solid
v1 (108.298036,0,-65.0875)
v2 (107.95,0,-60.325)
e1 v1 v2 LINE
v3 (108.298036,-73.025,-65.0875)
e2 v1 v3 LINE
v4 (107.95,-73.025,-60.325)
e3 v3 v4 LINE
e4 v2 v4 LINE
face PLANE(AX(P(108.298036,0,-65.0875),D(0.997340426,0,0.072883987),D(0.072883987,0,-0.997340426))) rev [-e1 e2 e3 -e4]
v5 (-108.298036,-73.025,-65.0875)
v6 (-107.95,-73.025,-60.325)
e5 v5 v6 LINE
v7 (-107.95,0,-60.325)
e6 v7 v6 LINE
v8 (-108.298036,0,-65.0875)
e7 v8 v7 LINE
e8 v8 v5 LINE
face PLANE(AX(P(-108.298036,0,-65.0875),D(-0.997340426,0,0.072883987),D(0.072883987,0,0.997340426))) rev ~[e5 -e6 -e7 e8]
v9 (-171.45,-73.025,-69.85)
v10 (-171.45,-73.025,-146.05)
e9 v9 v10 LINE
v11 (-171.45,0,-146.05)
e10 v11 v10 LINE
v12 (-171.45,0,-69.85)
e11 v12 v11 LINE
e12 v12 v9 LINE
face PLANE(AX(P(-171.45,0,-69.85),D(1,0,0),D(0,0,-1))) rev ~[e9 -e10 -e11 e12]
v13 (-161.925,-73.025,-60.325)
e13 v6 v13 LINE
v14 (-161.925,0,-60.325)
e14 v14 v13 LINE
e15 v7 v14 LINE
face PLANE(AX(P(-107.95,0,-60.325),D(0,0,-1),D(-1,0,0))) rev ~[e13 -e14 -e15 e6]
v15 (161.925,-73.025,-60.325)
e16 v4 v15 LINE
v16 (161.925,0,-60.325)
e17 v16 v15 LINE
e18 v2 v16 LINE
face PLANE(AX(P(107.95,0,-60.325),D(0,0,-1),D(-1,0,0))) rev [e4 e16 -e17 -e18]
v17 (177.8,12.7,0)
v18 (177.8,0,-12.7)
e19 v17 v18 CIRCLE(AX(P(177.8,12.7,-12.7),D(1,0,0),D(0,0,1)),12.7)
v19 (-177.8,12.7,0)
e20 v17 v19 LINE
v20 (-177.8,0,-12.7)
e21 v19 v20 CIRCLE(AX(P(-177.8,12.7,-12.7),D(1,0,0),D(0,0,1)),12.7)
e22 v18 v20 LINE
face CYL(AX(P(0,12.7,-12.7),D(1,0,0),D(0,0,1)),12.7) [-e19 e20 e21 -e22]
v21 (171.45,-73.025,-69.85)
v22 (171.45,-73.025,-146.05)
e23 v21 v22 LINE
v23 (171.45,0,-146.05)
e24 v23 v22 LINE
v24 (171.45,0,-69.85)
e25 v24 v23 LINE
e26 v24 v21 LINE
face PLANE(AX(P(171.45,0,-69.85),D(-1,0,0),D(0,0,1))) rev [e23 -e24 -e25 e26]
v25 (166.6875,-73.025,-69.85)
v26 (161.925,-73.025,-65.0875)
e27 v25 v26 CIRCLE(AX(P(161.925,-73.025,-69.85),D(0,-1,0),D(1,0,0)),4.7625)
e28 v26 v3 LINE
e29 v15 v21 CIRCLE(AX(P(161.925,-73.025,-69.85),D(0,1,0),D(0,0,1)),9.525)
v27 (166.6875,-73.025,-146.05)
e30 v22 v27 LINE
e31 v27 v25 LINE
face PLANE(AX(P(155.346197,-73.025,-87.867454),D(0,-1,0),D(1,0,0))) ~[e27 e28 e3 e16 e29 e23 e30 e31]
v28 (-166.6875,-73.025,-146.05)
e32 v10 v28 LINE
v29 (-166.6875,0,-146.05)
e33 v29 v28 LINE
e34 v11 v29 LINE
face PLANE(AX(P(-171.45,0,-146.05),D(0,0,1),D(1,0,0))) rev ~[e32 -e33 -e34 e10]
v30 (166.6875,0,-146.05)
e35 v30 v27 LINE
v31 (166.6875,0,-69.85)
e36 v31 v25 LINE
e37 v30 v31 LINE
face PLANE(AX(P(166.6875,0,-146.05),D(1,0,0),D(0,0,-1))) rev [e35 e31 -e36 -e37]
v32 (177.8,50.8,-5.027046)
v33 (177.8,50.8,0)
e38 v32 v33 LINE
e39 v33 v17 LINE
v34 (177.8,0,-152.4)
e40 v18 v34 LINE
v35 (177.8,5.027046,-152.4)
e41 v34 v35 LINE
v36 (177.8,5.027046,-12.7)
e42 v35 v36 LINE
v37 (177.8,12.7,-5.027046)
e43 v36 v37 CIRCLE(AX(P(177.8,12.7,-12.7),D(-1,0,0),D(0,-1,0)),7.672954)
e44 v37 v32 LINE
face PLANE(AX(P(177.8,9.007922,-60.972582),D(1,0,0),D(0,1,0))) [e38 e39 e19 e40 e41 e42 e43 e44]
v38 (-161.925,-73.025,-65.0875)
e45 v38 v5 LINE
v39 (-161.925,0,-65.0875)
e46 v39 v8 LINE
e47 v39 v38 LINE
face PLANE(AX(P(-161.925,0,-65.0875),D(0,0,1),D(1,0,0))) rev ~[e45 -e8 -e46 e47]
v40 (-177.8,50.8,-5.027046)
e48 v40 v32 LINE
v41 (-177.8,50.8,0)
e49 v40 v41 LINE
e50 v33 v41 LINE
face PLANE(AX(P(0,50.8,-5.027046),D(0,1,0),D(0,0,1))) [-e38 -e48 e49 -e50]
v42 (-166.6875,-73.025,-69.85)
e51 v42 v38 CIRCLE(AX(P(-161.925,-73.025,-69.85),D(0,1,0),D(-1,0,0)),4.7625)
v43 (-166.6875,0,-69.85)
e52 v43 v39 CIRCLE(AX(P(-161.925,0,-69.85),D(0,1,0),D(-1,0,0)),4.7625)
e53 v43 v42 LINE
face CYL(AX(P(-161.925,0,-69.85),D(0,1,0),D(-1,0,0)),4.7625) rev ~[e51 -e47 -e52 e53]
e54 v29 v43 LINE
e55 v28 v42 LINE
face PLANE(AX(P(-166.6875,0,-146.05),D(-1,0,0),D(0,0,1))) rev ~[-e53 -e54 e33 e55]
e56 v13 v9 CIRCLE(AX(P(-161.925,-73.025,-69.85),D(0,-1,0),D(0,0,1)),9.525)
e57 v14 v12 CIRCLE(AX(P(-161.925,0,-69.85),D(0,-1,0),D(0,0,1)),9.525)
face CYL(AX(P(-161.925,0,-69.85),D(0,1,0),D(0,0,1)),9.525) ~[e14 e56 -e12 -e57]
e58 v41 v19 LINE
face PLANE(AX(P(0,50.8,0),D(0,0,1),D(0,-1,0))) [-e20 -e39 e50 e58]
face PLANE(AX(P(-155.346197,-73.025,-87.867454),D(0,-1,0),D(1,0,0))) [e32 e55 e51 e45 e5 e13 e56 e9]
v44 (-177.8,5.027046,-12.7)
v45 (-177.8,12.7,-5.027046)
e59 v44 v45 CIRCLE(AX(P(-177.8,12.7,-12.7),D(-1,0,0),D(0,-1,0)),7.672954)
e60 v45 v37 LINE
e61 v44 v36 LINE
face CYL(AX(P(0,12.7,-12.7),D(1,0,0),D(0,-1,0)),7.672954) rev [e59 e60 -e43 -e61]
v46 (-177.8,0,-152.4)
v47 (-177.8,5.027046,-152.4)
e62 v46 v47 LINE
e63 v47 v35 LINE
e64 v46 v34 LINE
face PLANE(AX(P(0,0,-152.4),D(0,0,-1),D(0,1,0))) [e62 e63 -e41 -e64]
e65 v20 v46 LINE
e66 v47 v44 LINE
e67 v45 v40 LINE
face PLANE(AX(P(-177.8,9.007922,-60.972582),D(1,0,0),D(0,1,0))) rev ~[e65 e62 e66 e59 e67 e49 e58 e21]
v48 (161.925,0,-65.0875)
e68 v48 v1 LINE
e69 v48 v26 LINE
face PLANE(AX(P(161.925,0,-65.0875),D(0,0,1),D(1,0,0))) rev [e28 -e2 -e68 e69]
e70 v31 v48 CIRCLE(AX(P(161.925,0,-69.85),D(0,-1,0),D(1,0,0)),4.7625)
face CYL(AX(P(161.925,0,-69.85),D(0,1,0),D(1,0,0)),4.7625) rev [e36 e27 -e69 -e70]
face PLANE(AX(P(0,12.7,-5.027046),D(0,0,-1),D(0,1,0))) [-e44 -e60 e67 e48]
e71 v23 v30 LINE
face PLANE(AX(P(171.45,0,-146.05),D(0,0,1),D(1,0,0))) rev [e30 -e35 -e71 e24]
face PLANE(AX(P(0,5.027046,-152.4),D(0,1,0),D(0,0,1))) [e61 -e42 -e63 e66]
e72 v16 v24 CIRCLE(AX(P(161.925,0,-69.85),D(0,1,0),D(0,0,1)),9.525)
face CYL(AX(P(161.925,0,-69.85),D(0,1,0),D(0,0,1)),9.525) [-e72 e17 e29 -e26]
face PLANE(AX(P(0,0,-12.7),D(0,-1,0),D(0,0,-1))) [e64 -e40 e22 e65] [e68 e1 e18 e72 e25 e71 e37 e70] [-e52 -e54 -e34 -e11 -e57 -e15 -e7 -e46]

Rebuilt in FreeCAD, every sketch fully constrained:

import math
import FreeCAD as App
import Part
import Sketcher

V = App.Vector
Q = App.Units.Quantity

doc = App.newDocument("Part")
params = doc.addObject("Spreadsheet::Sheet", "Params")
for row, (alias, value) in enumerate([
    ("sketch1_radius", "0.5 in"),
    ("sketch1_width", "1.5 in"),
    ("sketch1_height", "5.5 in"),
    ("pad1_length", "14 in"),
    ("sketch2_height", "3 in"),
    ("sketch2_radius", "0.375 in"),
    ("sketch2_radius2", "0.1875 in"),
    ("sketch2_length", "0.188 in"),
    ("pad2_length", "2.875 in"),
], start=1):
    params.set(f"A{row}", alias)
    params.set(f"B{row}", "=" + value)
    params.setAlias(f"B{row}", alias)

body = doc.addObject("PartDesign::Body", "Body")

sketch1 = body.newObject("Sketcher::SketchObject", "Sketch")
sketch1.AttachmentSupport = (doc.getObject("YZ_Plane"), [""])
sketch1.MapMode = "FlatFace"
sketch1.addGeometry(Part.LineSegment(V(0, -12.7, 0), V(0, -152.4, 0)), False)
sketch1.addGeometry(Part.LineSegment(V(0, -152.4, 0), V(5.027046, -152.4, 0)), False)
sketch1.addGeometry(Part.LineSegment(V(5.027046, -152.4, 0), V(5.027046, -12.7, 0)), False)
sketch1.addGeometry(Part.ArcOfCircle(Part.Circle(V(12.7, -12.7, 0), V(0, 0, 1), 7.672954), math.radians(90), math.radians(180)), False)
sketch1.addGeometry(Part.LineSegment(V(12.7, -5.027046, 0), V(50.8, -5.027046, 0)), False)
sketch1.addGeometry(Part.LineSegment(V(50.8, -5.027046, 0), V(50.8, 0, 0)), False)
sketch1.addGeometry(Part.LineSegment(V(50.8, 0, 0), V(12.7, 0, 0)), False)
sketch1.addGeometry(Part.ArcOfCircle(Part.Circle(V(12.7, -12.7, 0), V(0, 0, 1), 12.7), math.radians(90), math.radians(180)), False)
sketch1.addConstraint(Sketcher.Constraint("Coincident", 0, 2, 1, 1))
sketch1.addConstraint(Sketcher.Constraint("Coincident", 1, 2, 2, 1))
sketch1.addConstraint(Sketcher.Constraint("Tangent", 2, 2, 3, 2))
sketch1.addConstraint(Sketcher.Constraint("Tangent", 3, 1, 4, 1))
sketch1.addConstraint(Sketcher.Constraint("Coincident", 4, 2, 5, 1))
sketch1.addConstraint(Sketcher.Constraint("Coincident", 5, 2, 6, 1))
sketch1.addConstraint(Sketcher.Constraint("Tangent", 6, 2, 7, 1))
sketch1.addConstraint(Sketcher.Constraint("Tangent", 7, 2, 0, 1))
sketch1.addConstraint(Sketcher.Constraint("Vertical", 0))
sketch1.addConstraint(Sketcher.Constraint("Horizontal", 1))
sketch1.addConstraint(Sketcher.Constraint("Vertical", 2))
sketch1.addConstraint(Sketcher.Constraint("Horizontal", 4))
sketch1.addConstraint(Sketcher.Constraint("Vertical", 5))
sketch1.addConstraint(Sketcher.Constraint("Horizontal", 6))
sketch1.addConstraint(Sketcher.Constraint("Coincident", 7, 3, 3, 3))
sketch1.addConstraint(Sketcher.Constraint("PointOnObject", 0, 2, -2))
sketch1.addConstraint(Sketcher.Constraint("PointOnObject", 5, 2, -1))
sketch1.addConstraint(Sketcher.Constraint("Radius", 7, Q("0.5 in")))
sketch1.addConstraint(Sketcher.Constraint("DistanceX", 4, 1, 4, 2, Q("1.5 in")))
sketch1.addConstraint(Sketcher.Constraint("DistanceY", 0, 2, 0, 1, Q("5.5 in")))
sketch1.addConstraint(Sketcher.Constraint("Radius", 3, Q("7.672954 mm")))
sketch1.setExpression("Constraints[17]", "Params.sketch1_radius")
sketch1.setExpression("Constraints[18]", "Params.sketch1_width")
sketch1.setExpression("Constraints[19]", "Params.sketch1_height")
pad1 = body.newObject("PartDesign::Pad", "Pad")
pad1.Profile = sketch1
pad1.setExpression("Length", "Params.pad1_length")
pad1.Midplane = True

sketch2 = body.newObject("Sketcher::SketchObject", "Sketch001")
sketch2.AttachmentSupport = (doc.getObject("XZ_Plane"), [""])
sketch2.MapMode = "FlatFace"
sketch2.addGeometry(Part.LineSegment(V(-108.298036, -65.0875, 0), V(-107.95, -60.325, 0)), False)
sketch2.addGeometry(Part.LineSegment(V(-107.95, -60.325, 0), V(-161.925, -60.325, 0)), False)
sketch2.addGeometry(Part.ArcOfCircle(Part.Circle(V(-161.925, -69.85, 0), V(0, 0, 1), 9.525), math.radians(90), math.radians(180)), False)
sketch2.addGeometry(Part.LineSegment(V(-171.45, -69.85, 0), V(-171.45, -146.05, 0)), False)
sketch2.addGeometry(Part.LineSegment(V(-171.45, -146.05, 0), V(-166.6875, -146.05, 0)), False)
sketch2.addGeometry(Part.LineSegment(V(-166.6875, -146.05, 0), V(-166.6875, -69.85, 0)), False)
sketch2.addGeometry(Part.ArcOfCircle(Part.Circle(V(-161.925, -69.85, 0), V(0, 0, 1), 4.7625), math.radians(90), math.radians(180)), False)
sketch2.addGeometry(Part.LineSegment(V(-161.925, -65.0875, 0), V(-108.298036, -65.0875, 0)), False)
sketch2.addConstraint(Sketcher.Constraint("Coincident", 0, 2, 1, 1))
sketch2.addConstraint(Sketcher.Constraint("Tangent", 1, 2, 2, 1))
sketch2.addConstraint(Sketcher.Constraint("Tangent", 2, 2, 3, 1))
sketch2.addConstraint(Sketcher.Constraint("Coincident", 3, 2, 4, 1))
sketch2.addConstraint(Sketcher.Constraint("Coincident", 4, 2, 5, 1))
sketch2.addConstraint(Sketcher.Constraint("Tangent", 5, 2, 6, 2))
sketch2.addConstraint(Sketcher.Constraint("Tangent", 6, 1, 7, 1))
sketch2.addConstraint(Sketcher.Constraint("Coincident", 7, 2, 0, 1))
sketch2.addConstraint(Sketcher.Constraint("Horizontal", 1))
sketch2.addConstraint(Sketcher.Constraint("Vertical", 3))
sketch2.addConstraint(Sketcher.Constraint("Horizontal", 4))
sketch2.addConstraint(Sketcher.Constraint("Vertical", 5))
sketch2.addConstraint(Sketcher.Constraint("Horizontal", 7))
sketch2.addConstraint(Sketcher.Constraint("Coincident", 6, 3, 2, 3))
sketch2.addConstraint(Sketcher.Constraint("DistanceY", 3, 2, 3, 1, Q("3 in")))
sketch2.addConstraint(Sketcher.Constraint("Radius", 2, Q("0.375 in")))
sketch2.addConstraint(Sketcher.Constraint("Radius", 6, Q("0.1875 in")))
sketch2.addConstraint(Sketcher.Constraint("DistanceX", 2, 2, 0, 2, Q("2.5 in")))
sketch2.addConstraint(Sketcher.Constraint("DistanceY", 2, 3, -1, 1, Q("2.75 in")))
sketch2.addConstraint(Sketcher.Constraint("DistanceX", 0, 2, -1, 1, Q("4.25 in")))
sketch2.addConstraint(Sketcher.Constraint("Distance", 0, Q("0.188 in")))
sketch2.setExpression("Constraints[14]", "Params.sketch2_height")
sketch2.setExpression("Constraints[15]", "Params.sketch2_radius")
sketch2.setExpression("Constraints[16]", "Params.sketch2_radius2")
sketch2.setExpression("Constraints[20]", "Params.sketch2_length")
pad2 = body.newObject("PartDesign::Pad", "Pad001")
pad2.Profile = sketch2
pad2.setExpression("Length", "Params.pad2_length")
body2 = doc.addObject("PartDesign::Body", "Body001")
doc.recompute()

body2.BaseFeature = body
doc.recompute()

mirroring = doc.addObject("Part::Mirroring", "Mirroring")
mirroring.Source = body
mirroring.Base = V(0, 0, 0)
mirroring.Normal = V(1, 0, 0)
body3 = doc.addObject("PartDesign::Body", "Body002")
body3.BaseFeature = mirroring
boolean = body2.newObject("PartDesign::Boolean", "Boolean")
boolean.Type = "Fuse"
boolean.addObjects([body3])
doc.recompute()
mirroring.Visibility = False

doc.recompute()
